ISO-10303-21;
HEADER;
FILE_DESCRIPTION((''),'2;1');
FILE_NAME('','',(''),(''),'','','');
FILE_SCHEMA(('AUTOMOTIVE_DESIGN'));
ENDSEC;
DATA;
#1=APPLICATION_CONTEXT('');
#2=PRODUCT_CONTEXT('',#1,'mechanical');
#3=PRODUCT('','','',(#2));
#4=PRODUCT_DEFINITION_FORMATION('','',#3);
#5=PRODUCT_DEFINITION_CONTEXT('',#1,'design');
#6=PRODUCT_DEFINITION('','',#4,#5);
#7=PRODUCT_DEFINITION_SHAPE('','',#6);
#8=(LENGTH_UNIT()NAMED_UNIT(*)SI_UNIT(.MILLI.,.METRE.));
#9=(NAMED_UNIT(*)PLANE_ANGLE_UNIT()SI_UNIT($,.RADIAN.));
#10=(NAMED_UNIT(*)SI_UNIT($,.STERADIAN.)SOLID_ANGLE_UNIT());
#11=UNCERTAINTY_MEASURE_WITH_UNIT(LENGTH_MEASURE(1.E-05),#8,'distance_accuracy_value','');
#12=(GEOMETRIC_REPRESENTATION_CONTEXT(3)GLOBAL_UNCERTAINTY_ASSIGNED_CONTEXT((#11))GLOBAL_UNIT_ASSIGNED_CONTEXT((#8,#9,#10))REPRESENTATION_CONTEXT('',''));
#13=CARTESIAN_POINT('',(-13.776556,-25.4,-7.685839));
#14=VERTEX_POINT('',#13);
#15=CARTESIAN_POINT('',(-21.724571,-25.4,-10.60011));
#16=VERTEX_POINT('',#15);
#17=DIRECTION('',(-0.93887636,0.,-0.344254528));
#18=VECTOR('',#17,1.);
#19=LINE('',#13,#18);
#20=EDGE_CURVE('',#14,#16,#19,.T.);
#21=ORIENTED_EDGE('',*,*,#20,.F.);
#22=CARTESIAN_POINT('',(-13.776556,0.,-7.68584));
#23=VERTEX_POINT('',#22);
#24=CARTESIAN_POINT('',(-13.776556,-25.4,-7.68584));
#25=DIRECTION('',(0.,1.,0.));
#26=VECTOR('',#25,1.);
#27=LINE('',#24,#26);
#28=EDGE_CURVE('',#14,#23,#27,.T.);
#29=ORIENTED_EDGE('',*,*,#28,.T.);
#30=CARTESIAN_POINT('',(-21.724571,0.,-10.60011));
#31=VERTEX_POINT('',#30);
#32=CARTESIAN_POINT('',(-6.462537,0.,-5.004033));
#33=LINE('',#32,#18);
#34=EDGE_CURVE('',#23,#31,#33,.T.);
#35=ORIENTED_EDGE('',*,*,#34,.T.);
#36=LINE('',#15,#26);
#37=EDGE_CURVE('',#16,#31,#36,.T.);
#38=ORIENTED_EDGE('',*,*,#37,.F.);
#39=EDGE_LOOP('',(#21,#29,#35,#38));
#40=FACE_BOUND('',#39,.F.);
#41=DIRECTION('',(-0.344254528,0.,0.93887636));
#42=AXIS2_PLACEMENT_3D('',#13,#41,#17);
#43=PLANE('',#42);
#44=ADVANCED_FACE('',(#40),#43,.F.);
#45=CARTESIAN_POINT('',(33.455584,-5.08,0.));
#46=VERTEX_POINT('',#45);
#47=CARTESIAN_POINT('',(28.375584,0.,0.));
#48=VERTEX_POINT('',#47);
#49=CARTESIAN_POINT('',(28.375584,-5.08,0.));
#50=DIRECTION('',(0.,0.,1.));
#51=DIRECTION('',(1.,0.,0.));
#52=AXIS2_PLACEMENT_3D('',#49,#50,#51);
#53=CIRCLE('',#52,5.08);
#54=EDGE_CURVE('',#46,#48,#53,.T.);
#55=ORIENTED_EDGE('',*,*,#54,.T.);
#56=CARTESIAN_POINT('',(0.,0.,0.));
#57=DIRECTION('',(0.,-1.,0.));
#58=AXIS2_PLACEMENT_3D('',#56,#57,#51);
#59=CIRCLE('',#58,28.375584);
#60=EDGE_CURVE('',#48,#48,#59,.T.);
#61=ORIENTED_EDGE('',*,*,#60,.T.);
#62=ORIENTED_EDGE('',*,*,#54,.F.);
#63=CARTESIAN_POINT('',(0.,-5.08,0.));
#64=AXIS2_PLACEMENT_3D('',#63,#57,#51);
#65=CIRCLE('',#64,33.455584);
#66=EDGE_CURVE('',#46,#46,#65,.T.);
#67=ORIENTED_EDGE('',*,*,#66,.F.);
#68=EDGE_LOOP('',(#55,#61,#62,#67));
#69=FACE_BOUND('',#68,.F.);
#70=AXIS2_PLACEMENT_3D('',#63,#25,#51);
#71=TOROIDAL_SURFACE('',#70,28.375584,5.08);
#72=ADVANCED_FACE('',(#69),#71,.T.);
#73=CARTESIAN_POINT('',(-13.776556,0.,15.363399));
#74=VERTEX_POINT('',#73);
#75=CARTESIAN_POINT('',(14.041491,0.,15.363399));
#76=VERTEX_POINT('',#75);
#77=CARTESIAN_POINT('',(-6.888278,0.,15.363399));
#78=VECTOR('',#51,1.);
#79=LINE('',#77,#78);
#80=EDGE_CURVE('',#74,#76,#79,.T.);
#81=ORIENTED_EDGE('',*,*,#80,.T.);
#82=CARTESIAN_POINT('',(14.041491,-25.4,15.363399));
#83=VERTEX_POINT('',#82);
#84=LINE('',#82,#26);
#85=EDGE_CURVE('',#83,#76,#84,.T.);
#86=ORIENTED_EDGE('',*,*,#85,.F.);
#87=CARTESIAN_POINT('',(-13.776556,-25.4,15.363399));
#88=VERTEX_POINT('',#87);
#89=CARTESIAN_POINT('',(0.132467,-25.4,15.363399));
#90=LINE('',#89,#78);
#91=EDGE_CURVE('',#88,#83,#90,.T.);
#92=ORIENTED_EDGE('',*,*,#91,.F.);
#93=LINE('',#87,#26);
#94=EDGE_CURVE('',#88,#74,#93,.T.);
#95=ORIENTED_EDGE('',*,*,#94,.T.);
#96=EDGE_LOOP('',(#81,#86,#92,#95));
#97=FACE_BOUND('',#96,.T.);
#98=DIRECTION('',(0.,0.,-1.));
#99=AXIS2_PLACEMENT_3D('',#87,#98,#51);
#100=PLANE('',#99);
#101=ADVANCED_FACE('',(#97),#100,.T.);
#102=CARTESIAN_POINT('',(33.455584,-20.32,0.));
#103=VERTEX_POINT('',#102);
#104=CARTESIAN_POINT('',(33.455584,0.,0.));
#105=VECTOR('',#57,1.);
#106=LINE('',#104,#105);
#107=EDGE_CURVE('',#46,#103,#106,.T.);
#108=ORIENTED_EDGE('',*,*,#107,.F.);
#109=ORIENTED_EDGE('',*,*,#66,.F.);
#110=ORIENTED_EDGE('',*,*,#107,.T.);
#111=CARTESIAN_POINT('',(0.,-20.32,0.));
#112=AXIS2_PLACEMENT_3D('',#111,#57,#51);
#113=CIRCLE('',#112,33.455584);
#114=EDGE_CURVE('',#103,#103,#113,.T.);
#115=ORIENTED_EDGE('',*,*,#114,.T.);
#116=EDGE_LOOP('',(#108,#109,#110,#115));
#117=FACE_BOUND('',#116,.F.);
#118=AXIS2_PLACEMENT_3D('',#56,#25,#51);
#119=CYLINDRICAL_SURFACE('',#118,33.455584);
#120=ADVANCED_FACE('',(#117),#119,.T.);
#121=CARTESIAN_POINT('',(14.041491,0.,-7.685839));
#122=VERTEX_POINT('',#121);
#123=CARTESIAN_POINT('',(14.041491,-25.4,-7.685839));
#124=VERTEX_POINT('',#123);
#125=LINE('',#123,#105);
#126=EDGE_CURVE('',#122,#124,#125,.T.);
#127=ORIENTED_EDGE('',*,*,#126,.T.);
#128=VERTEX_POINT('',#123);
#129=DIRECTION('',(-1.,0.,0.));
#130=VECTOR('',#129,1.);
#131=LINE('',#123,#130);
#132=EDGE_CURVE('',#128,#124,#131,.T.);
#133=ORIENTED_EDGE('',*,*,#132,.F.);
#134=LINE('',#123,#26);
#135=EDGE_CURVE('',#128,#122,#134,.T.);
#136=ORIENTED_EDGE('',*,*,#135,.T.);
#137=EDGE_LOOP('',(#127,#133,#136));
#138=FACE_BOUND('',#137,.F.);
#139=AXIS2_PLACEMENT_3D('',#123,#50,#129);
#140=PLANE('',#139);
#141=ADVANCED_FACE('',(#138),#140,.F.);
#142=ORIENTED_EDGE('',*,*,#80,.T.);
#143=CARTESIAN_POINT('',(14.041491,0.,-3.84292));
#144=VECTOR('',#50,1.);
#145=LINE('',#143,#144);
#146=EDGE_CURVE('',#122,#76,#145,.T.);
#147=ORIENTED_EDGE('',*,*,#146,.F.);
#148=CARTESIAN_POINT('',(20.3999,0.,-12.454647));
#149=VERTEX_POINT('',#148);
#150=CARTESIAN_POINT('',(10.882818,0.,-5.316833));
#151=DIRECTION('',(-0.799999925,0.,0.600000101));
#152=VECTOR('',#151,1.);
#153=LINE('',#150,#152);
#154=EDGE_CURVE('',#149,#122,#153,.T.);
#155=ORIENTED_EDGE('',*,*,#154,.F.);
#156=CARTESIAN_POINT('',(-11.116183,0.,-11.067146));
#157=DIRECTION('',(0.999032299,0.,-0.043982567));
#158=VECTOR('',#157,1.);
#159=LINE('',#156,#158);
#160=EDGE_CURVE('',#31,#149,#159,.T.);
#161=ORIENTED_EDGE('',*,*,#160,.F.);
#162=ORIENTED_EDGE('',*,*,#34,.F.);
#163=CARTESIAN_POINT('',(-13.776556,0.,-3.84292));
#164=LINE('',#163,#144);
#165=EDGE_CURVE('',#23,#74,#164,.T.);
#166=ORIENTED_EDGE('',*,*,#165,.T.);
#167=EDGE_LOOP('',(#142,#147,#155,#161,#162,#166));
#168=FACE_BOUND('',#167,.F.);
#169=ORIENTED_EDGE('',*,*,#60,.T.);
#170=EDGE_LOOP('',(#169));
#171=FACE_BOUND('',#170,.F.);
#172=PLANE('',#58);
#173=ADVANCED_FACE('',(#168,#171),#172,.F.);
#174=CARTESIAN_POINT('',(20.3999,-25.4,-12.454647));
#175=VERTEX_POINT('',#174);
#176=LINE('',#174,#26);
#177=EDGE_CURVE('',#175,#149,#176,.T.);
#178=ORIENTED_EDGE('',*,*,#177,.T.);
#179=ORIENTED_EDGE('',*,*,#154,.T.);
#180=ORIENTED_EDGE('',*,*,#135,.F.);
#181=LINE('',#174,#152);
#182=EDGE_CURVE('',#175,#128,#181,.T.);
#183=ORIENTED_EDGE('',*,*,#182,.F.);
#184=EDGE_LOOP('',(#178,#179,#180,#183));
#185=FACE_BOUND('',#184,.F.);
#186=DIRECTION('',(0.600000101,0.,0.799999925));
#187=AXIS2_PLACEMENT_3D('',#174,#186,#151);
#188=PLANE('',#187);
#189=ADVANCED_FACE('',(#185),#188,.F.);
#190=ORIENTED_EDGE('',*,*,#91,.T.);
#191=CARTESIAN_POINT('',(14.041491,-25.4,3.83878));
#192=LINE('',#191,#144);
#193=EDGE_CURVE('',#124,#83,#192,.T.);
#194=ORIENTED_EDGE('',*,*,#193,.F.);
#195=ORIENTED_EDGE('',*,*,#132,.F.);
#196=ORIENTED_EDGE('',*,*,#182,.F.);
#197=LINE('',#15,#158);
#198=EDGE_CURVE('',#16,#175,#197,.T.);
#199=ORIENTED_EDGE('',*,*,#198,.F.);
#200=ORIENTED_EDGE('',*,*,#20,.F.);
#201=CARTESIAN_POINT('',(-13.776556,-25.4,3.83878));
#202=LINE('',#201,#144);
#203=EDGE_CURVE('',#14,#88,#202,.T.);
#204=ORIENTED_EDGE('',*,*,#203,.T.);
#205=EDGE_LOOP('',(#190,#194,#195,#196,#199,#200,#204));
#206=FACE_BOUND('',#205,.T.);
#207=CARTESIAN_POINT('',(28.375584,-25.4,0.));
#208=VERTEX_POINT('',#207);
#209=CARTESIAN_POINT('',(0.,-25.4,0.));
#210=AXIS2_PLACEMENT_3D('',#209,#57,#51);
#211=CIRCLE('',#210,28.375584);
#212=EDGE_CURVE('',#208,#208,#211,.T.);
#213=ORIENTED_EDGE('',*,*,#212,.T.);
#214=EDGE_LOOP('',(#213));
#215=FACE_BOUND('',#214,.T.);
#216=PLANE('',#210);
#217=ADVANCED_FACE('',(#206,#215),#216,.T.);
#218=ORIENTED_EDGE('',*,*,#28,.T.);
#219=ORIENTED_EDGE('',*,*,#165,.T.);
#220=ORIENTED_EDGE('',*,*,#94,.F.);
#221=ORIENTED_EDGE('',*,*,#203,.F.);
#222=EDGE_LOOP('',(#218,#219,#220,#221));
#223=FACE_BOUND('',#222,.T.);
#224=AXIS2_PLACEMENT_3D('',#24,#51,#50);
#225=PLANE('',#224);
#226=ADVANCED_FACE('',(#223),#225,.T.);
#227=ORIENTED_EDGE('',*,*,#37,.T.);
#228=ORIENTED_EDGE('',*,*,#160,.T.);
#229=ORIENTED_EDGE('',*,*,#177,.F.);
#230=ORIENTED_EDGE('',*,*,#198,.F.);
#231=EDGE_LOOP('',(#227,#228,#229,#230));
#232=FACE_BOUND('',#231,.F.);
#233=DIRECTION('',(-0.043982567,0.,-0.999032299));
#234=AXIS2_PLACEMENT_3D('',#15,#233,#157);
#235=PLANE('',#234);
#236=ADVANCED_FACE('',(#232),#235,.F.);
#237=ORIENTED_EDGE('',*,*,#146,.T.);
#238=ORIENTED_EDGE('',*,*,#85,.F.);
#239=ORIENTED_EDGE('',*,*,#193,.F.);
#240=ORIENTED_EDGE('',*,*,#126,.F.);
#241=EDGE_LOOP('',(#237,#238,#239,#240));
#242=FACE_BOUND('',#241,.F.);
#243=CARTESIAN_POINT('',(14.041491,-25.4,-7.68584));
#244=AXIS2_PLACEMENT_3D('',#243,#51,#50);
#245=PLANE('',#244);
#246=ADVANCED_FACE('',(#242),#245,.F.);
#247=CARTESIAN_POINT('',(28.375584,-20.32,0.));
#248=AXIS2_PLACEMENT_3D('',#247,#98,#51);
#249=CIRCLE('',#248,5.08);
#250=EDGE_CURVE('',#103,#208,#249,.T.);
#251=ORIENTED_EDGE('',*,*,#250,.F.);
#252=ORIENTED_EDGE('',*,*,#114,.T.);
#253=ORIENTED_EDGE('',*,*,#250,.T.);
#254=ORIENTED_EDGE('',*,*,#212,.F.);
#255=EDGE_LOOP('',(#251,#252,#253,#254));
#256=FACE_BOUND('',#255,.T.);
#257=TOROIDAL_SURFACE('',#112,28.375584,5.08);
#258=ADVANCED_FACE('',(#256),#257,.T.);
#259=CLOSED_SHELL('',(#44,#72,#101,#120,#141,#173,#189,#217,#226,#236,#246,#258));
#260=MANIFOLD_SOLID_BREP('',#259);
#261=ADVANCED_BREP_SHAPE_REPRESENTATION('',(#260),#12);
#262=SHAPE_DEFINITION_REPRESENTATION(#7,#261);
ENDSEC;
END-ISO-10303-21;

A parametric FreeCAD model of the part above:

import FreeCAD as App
import Part
import Sketcher


def edges_at(feature, points):
    """Names of the edges that pass closest to the given points."""
    edges = feature.Shape.Edges
    near = lambda p: min(range(len(edges)), key=lambda i: edges[i].distToShape(Part.Vertex(*p))[0])
    return sorted({f"Edge{near(p) + 1}" for p in points})

doc = App.newDocument("Part")
params = doc.addObject("Spreadsheet::Sheet", "Params")
for row, (alias, value) in enumerate([
    ("pad1_length", "1 in"),
    ("fillet_radius", "0.2 in"),
    ("fillet2_radius", "0.2 in"),
], start=1):
    params.set(f"A{row}", alias)
    params.set(f"B{row}", "=" + value)
    params.setAlias(f"B{row}", alias)

body = doc.addObject("PartDesign::Body", "Body")

sketch1 = body.newObject("Sketcher::SketchObject", "Sketch")
sketch1.AttachmentSupport = (doc.getObject("XZ_Plane"), [""])
sketch1.MapMode = "FlatFace"
sketch1.addGeometry(Part.Circle(App.Vector(0, 0, 0), App.Vector(0, 0, 1), 33.455584), False)
sketch1.addConstraint([
    Sketcher.Constraint("Coincident", 0, 3, -1, 1),
    Sketcher.Constraint("Diameter", 0, 66.911168),
])
pad1 = body.newObject("PartDesign::Pad", "Pad")
pad1.Profile = sketch1
pad1.setExpression("Length", "Params.pad1_length")
doc.recompute()

fillet = body.newObject("PartDesign::Fillet", "Fillet")
fillet.Base = (pad1, edges_at(pad1, [(-33.456, -25.4, 0)]))
fillet.setExpression("Radius", "Params.fillet_radius")
doc.recompute()

fillet2 = body.newObject("PartDesign::Fillet", "Fillet001")
fillet2.Base = (fillet, edges_at(fillet, [(-33.456, 0, 0)]))
fillet2.setExpression("Radius", "Params.fillet2_radius")

sketch2 = body.newObject("Sketcher::SketchObject", "Sketch001")
sketch2.AttachmentSupport = (doc.getObject("XZ_Plane"), [""])
sketch2.MapMode = "FlatFace"
sketch2.AttachmentOffset = App.Placement(App.Vector(0, 0, 1 * 25.4), App.Rotation())
sketch2.addGeometry([
    Part.LineSegment(App.Vector(-13.776556, 15.363399, 0), App.Vector(-13.776556, -7.68584, 0)),
    Part.LineSegment(App.Vector(-13.776556, -7.68584, 0), App.Vector(14.041491, -7.68584, 0)),
    Part.LineSegment(App.Vector(14.041491, -7.68584, 0), App.Vector(14.041491, 15.363399, 0)),
    Part.LineSegment(App.Vector(14.041491, 15.363399, 0), App.Vector(-13.776556, 15.363399, 0)),
], False)
sketch2.addConstraint([
    Sketcher.Constraint("Coincident", 0, 2, 1, 1),
    Sketcher.Constraint("Coincident", 1, 2, 2, 1),
    Sketcher.Constraint("Coincident", 2, 2, 3, 1),
    Sketcher.Constraint("Coincident", 3, 2, 0, 1),
    Sketcher.Constraint("Vertical", 0),
    Sketcher.Constraint("Horizontal", 1),
    Sketcher.Constraint("Vertical", 2),
    Sketcher.Constraint("Horizontal", 3),
    Sketcher.Constraint("DistanceY", 0, 2, 0, 1, 23.049239),
    Sketcher.Constraint("DistanceY", -1, 1, 2, 2, 15.363399),
    Sketcher.Constraint("DistanceX", 1, 1, 1, 2, 27.818047),
    Sketcher.Constraint("DistanceX", -1, 1, 1, 2, 14.041491),
])
pocket1 = body.newObject("PartDesign::Pocket", "Pocket")
pocket1.Profile = sketch2
pocket1.Type = "ThroughAll"

sketch3 = body.newObject("Sketcher::SketchObject", "Sketch002")
sketch3.AttachmentSupport = (doc.getObject("XZ_Plane"), [""])
sketch3.MapMode = "FlatFace"
sketch3.AttachmentOffset = App.Placement(App.Vector(0, 0, 1 * 25.4), App.Rotation())
sketch3.addGeometry([
    Part.LineSegment(App.Vector(-13.776556, -7.685839, 0), App.Vector(-21.724571, -10.60011, 0)),
    Part.LineSegment(App.Vector(-21.724571, -10.60011, 0), App.Vector(20.3999, -12.454647, 0)),
    Part.LineSegment(App.Vector(20.3999, -12.454647, 0), App.Vector(14.041491, -7.685839, 0)),
    Part.LineSegment(App.Vector(14.041491, -7.685839, 0), App.Vector(-13.776556, -7.685839, 0)),
], False)
sketch3.addConstraint([
    Sketcher.Constraint("Coincident", 0, 2, 1, 1),
    Sketcher.Constraint("Coincident", 1, 2, 2, 1),
    Sketcher.Constraint("Coincident", 2, 2, 3, 1),
    Sketcher.Constraint("Coincident", 3, 2, 0, 1),
    Sketcher.Constraint("Horizontal", 3),
    Sketcher.Constraint("DistanceX", -1, 1, 1, 2, 20.3999),
    Sketcher.Constraint("DistanceX", 3, 2, 3, 1, 27.818047),
    Sketcher.Constraint("DistanceX", 0, 2, -1, 1, 21.724571),
    Sketcher.Constraint("DistanceY", 0, 2, -1, 1, 10.60011),
    Sketcher.Constraint("DistanceX", -1, 1, 2, 2, 14.041491),
    Sketcher.Constraint("DistanceY", 2, 2, -1, 1, 7.685839),
    Sketcher.Constraint("Distance", 1, 42.165274),
])
pocket2 = body.newObject("PartDesign::Pocket", "Pocket001")
pocket2.Profile = sketch3
pocket2.Type = "ThroughAll"

doc.recompute()
